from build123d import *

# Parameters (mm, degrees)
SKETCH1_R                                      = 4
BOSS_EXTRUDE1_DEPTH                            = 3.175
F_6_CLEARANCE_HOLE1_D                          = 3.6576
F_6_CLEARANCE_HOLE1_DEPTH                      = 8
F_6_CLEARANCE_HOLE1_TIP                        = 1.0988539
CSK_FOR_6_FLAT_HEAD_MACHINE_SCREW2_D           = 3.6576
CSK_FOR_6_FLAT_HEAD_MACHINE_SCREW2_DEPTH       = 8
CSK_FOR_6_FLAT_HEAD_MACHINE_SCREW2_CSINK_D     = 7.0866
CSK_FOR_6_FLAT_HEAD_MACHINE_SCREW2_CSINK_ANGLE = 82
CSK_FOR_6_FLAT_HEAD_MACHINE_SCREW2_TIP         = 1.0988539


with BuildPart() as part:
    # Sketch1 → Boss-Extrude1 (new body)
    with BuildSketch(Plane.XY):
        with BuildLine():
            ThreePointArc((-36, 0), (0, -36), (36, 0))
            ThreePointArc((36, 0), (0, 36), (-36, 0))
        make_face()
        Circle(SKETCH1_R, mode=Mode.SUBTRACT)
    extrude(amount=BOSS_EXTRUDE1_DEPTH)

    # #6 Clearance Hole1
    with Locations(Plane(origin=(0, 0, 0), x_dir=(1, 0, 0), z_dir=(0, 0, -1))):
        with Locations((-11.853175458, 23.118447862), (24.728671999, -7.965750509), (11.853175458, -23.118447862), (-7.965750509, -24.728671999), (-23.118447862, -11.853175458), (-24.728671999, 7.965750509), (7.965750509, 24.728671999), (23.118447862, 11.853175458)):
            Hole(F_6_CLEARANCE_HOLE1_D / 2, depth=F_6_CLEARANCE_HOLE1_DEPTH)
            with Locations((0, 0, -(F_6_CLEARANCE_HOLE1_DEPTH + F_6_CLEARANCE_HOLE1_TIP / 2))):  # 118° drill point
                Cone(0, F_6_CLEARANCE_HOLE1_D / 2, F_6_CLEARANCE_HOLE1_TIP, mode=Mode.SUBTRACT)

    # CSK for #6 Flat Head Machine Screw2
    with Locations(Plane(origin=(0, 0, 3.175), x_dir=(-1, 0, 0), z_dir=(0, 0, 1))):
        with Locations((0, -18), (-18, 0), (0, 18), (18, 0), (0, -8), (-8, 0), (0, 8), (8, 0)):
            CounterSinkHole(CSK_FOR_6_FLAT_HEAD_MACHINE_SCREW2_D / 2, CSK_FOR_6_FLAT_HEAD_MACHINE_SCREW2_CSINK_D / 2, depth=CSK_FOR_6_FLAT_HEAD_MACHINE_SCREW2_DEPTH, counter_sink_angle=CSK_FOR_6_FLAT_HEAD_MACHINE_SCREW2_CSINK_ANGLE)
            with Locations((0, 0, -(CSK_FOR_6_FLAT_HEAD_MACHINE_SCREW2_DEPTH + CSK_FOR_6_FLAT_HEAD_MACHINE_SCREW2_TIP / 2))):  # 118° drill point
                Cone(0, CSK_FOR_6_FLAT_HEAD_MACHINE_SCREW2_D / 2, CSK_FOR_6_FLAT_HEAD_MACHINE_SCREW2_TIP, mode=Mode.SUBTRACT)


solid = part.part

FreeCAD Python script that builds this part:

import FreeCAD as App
import Part
import Sketcher
Q = App.Units.Quantity

doc = App.newDocument("Part")
body = doc.addObject("PartDesign::Body", "Body")

sketch1 = body.newObject("Sketcher::SketchObject", "Sketch")
sketch1.AttachmentSupport = (doc.getObject("XY_Plane"), [""])
sketch1.MapMode = "FlatFace"
sketch1.addGeometry([
    Part.Circle(App.Vector(0, 0, 0), App.Vector(0, 0, 1), 36),
    Part.Circle(App.Vector(0, 0, 0), App.Vector(0, 0, 1), 4),
], False)
sketch1.addConstraint([
    Sketcher.Constraint("Coincident", 0, 3, -1, 1),
    Sketcher.Constraint("Coincident", 1, 3, -1, 1),
    Sketcher.Constraint("Diameter", 0, Q("72 mm")),
    Sketcher.Constraint("Diameter", 1, Q("8 mm")),
])
pad1 = body.newObject("PartDesign::Pad", "Pad")
pad1.Profile = sketch1
pad1.Length = 3.175

sketch2 = body.newObject("Sketcher::SketchObject", "Sketch001")
sketch2.AttachmentSupport = (doc.getObject("XY_Plane"), [""])
sketch2.MapMode = "FlatFace"
sketch2.addGeometry([
    Part.Circle(App.Vector(-11.9, -23.1, 0), App.Vector(0, 0, 1), 1.8),
    Part.Circle(App.Vector(24.7, 8, 0), App.Vector(0, 0, 1), 1.8),
    Part.Circle(App.Vector(11.9, 23.1, 0), App.Vector(0, 0, 1), 1.8),
    Part.Circle(App.Vector(-8, 24.7, 0), App.Vector(0, 0, 1), 1.8),
    Part.Circle(App.Vector(-23.1, 11.9, 0), App.Vector(0, 0, 1), 1.8),
    Part.Circle(App.Vector(-24.7, -8, 0), App.Vector(0, 0, 1), 1.8),
    Part.Circle(App.Vector(8, -24.7, 0), App.Vector(0, 0, 1), 1.8),
    Part.Circle(App.Vector(23.1, -11.9, 0), App.Vector(0, 0, 1), 1.8),
], False)
sketch2.addConstraint([
    Sketcher.Constraint("Equal", 0, 1),
    Sketcher.Constraint("Equal", 1, 2),
    Sketcher.Constraint("Equal", 2, 3),
    Sketcher.Constraint("Equal", 3, 4),
    Sketcher.Constraint("Equal", 4, 5),
    Sketcher.Constraint("Equal", 5, 6),
    Sketcher.Constraint("Equal", 6, 7),
    Sketcher.Constraint("Symmetric", 0, 3, 2, 3, -1, 1),
    Sketcher.Constraint("Symmetric", 1, 3, 5, 3, -1, 1),
    Sketcher.Constraint("Symmetric", 3, 3, 6, 3, -1, 1),
    Sketcher.Constraint("Symmetric", 4, 3, 7, 3, -1, 1),
    Sketcher.Constraint("Diameter", 0, Q("3.6576 mm")),
    Sketcher.Constraint("DistanceY", 0, 3, 1, 3, Q("31.084198 mm")),
    Sketcher.Constraint("DistanceY", 5, 3, 1, 3, Q("15.931501 mm")),
    Sketcher.Constraint("DistanceX", 4, 3, 6, 3, Q("31.084198 mm")),
    Sketcher.Constraint("DistanceX", -1, 1, 1, 3, Q("24.728672 mm")),
    Sketcher.Constraint("DistanceX", 3, 3, -1, 1, Q("7.965751 mm")),
    Sketcher.Constraint("DistanceY", -1, 1, 3, 3, Q("24.728672 mm")),
    Sketcher.Constraint("DistanceX", 0, 3, 2, 3, Q("23.706351 mm")),
    Sketcher.Constraint("DistanceY", -1, 1, 4, 3, Q("11.853175 mm")),
])
doc.recompute()
hole = body.newObject("PartDesign::Hole", "Hole")
hole.Profile = sketch2
hole.ThreadType = "None"
hole.Diameter = 3.6576
hole.DepthType = "Dimension"
hole.Depth = 8
hole.DrillPoint = "Angled"
hole.DrillPointAngle = 118
hole.Reversed = True

sketch3 = body.newObject("Sketcher::SketchObject", "Sketch002")
sketch3.AttachmentSupport = (doc.getObject("XY_Plane"), [""])
sketch3.MapMode = "FlatFace"
sketch3.AttachmentOffset = App.Placement(App.Vector(0, 0, 3.175), App.Rotation())
sketch3.addGeometry([
    Part.Circle(App.Vector(0, 18, 0), App.Vector(0, 0, 1), 1.8),
    Part.Circle(App.Vector(18, 0, 0), App.Vector(0, 0, 1), 1.8),
    Part.Circle(App.Vector(0, -18, 0), App.Vector(0, 0, 1), 1.8),
    Part.Circle(App.Vector(-18, 0, 0), App.Vector(0, 0, 1), 1.8),
    Part.Circle(App.Vector(0, 8, 0), App.Vector(0, 0, 1), 1.8),
    Part.Circle(App.Vector(8, 0, 0), App.Vector(0, 0, 1), 1.8),
    Part.Circle(App.Vector(0, -8, 0), App.Vector(0, 0, 1), 1.8),
    Part.Circle(App.Vector(-8, 0, 0), App.Vector(0, 0, 1), 1.8),
], False)
sketch3.addConstraint([
    Sketcher.Constraint("Equal", 0, 1),
    Sketcher.Constraint("Equal", 1, 2),
    Sketcher.Constraint("Equal", 2, 3),
    Sketcher.Constraint("Equal", 3, 4),
    Sketcher.Constraint("Equal", 4, 5),
    Sketcher.Constraint("Equal", 5, 6),
    Sketcher.Constraint("Equal", 6, 7),
    Sketcher.Constraint("Symmetric", 0, 3, 2, 3, -1, 1),
    Sketcher.Constraint("Symmetric", 1, 3, 3, 3, -1, 1),
    Sketcher.Constraint("Symmetric", 4, 3, 6, 3, -1, 1),
    Sketcher.Constraint("Symmetric", 5, 3, 7, 3, -1, 1),
    Sketcher.Constraint("PointOnObject", 0, 3, -2),
    Sketcher.Constraint("PointOnObject", 1, 3, -1),
    Sketcher.Constraint("PointOnObject", 4, 3, -2),
    Sketcher.Constraint("PointOnObject", 5, 3, -1),
    Sketcher.Constraint("DistanceY", -1, 1, 0, 3, Q("18 mm")),
    Sketcher.Constraint("DistanceX", -1, 1, 1, 3, Q("18 mm")),
    Sketcher.Constraint("DistanceY", -1, 1, 4, 3, Q("8 mm")),
    Sketcher.Constraint("DistanceX", -1, 1, 5, 3, Q("8 mm")),
    Sketcher.Constraint("Diameter", 0, Q("3.6576 mm")),
])
doc.recompute()
hole2 = body.newObject("PartDesign::Hole", "Hole001")
hole2.Profile = sketch3
hole2.ThreadType = "None"
hole2.Diameter = 3.6576
hole2.DepthType = "Dimension"
hole2.Depth = 8
hole2.DrillPoint = "Angled"
hole2.DrillPointAngle = 118
hole2.HoleCutType = "Countersink"
hole2.HoleCutDiameter = 7.0866
hole2.HoleCutCountersinkAngle = 82

doc.recompute()
